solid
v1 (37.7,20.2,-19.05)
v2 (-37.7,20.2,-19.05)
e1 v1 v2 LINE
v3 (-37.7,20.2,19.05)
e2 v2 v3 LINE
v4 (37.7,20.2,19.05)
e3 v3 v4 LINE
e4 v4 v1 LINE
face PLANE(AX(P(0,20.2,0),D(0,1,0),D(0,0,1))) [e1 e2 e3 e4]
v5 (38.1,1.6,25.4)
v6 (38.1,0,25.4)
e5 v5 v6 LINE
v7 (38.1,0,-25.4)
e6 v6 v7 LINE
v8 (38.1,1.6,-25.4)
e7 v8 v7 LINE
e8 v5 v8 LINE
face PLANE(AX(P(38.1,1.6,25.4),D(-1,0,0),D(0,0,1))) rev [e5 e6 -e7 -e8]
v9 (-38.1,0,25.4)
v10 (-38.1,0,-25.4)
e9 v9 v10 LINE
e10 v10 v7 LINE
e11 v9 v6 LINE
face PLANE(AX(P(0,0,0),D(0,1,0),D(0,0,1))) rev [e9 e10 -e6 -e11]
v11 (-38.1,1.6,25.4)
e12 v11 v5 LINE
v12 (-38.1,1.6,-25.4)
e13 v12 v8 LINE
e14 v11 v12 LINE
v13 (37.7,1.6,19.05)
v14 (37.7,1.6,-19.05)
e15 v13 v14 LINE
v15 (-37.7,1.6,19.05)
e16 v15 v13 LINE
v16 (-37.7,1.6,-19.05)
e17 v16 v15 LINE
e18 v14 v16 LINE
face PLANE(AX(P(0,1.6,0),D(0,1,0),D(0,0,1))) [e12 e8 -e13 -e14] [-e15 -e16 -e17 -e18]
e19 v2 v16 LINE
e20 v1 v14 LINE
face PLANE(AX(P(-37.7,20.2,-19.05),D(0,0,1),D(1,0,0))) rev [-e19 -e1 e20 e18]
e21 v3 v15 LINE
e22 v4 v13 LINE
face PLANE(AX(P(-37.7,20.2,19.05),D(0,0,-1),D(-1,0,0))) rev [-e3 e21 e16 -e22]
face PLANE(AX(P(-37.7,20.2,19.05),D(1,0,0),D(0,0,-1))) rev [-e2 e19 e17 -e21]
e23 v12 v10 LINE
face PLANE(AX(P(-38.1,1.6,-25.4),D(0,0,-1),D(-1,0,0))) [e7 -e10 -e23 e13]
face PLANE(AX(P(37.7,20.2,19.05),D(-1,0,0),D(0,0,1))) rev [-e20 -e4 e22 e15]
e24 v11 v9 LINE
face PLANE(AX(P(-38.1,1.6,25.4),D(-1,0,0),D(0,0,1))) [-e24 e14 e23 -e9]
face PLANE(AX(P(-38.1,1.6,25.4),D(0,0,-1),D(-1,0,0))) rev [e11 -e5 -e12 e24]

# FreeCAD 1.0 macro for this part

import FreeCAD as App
import Part
import Sketcher

V = App.Vector

doc = App.newDocument("Part")
body = doc.addObject("PartDesign::Body", "Body")

sketch1 = doc.addObject("Sketcher::SketchObject", "Sketch")
body.addObject(sketch1)
sketch1.AttachmentSupport = (doc.XZ_Plane, [""])
sketch1.MapMode = "FlatFace"
sketch1.addGeometry([
    Part.LineSegment(V(-38, -25, 0), V(-38, 25, 0)),
    Part.LineSegment(V(-38, 25, 0), V(38, 25, 0)),
    Part.LineSegment(V(38, 25, 0), V(38, -25, 0)),
    Part.LineSegment(V(38, -25, 0), V(-38, -25, 0)),
], False)
sketch1.addConstraint([
    Sketcher.Constraint("Coincident", 0, 2, 1, 1),
    Sketcher.Constraint("Coincident", 1, 2, 2, 1),
    Sketcher.Constraint("Coincident", 2, 2, 3, 1),
    Sketcher.Constraint("Coincident", 3, 2, 0, 1),
    Sketcher.Constraint("Vertical", 0),
    Sketcher.Constraint("Horizontal", 1),
    Sketcher.Constraint("Vertical", 2),
    Sketcher.Constraint("Horizontal", 3),
    Sketcher.Constraint("Symmetric", 0, 2, 2, 2, -1, 1),
    Sketcher.Constraint("DistanceX", 1, 1, 1, 2, 76.2),
    Sketcher.Constraint("DistanceY", 0, 1, 0, 2, 50.8),
])
pad1 = doc.addObject("PartDesign::Pad", "Pad")
body.addObject(pad1)
pad1.Profile = sketch1
pad1.Length = 1.6
pad1.Reversed = True

sketch2 = doc.addObject("Sketcher::SketchObject", "Sketch001")
body.addObject(sketch2)
sketch2.AttachmentSupport = (doc.XZ_Plane, [""])
sketch2.MapMode = "FlatFace"
sketch2.AttachmentOffset = App.Placement(V(0, 0, -1.6), App.Rotation())
sketch2.addGeometry([
    Part.LineSegment(V(-38, -19, 0), V(-38, 19, 0)),
    Part.LineSegment(V(-38, 19, 0), V(38, 19, 0)),
    Part.LineSegment(V(38, 19, 0), V(38, -19, 0)),
    Part.LineSegment(V(38, -19, 0), V(-38, -19, 0)),
], False)
sketch2.addConstraint([
    Sketcher.Constraint("Coincident", 0, 2, 1, 1),
    Sketcher.Constraint("Coincident", 1, 2, 2, 1),
    Sketcher.Constraint("Coincident", 2, 2, 3, 1),
    Sketcher.Constraint("Coincident", 3, 2, 0, 1),
    Sketcher.Constraint("Vertical", 0),
    Sketcher.Constraint("Horizontal", 1),
    Sketcher.Constraint("Vertical", 2),
    Sketcher.Constraint("Horizontal", 3),
    Sketcher.Constraint("Symmetric", 0, 2, 2, 2, -1, 1),
    Sketcher.Constraint("DistanceX", 1, 1, 1, 2, 75.4),
    Sketcher.Constraint("DistanceY", 0, 1, 0, 2, 38.1),
])
pad2 = doc.addObject("PartDesign::Pad", "Pad001")
body.addObject(pad2)
pad2.Profile = sketch2
pad2.Length = 18.6
pad2.Reversed = True

doc.recompute()
